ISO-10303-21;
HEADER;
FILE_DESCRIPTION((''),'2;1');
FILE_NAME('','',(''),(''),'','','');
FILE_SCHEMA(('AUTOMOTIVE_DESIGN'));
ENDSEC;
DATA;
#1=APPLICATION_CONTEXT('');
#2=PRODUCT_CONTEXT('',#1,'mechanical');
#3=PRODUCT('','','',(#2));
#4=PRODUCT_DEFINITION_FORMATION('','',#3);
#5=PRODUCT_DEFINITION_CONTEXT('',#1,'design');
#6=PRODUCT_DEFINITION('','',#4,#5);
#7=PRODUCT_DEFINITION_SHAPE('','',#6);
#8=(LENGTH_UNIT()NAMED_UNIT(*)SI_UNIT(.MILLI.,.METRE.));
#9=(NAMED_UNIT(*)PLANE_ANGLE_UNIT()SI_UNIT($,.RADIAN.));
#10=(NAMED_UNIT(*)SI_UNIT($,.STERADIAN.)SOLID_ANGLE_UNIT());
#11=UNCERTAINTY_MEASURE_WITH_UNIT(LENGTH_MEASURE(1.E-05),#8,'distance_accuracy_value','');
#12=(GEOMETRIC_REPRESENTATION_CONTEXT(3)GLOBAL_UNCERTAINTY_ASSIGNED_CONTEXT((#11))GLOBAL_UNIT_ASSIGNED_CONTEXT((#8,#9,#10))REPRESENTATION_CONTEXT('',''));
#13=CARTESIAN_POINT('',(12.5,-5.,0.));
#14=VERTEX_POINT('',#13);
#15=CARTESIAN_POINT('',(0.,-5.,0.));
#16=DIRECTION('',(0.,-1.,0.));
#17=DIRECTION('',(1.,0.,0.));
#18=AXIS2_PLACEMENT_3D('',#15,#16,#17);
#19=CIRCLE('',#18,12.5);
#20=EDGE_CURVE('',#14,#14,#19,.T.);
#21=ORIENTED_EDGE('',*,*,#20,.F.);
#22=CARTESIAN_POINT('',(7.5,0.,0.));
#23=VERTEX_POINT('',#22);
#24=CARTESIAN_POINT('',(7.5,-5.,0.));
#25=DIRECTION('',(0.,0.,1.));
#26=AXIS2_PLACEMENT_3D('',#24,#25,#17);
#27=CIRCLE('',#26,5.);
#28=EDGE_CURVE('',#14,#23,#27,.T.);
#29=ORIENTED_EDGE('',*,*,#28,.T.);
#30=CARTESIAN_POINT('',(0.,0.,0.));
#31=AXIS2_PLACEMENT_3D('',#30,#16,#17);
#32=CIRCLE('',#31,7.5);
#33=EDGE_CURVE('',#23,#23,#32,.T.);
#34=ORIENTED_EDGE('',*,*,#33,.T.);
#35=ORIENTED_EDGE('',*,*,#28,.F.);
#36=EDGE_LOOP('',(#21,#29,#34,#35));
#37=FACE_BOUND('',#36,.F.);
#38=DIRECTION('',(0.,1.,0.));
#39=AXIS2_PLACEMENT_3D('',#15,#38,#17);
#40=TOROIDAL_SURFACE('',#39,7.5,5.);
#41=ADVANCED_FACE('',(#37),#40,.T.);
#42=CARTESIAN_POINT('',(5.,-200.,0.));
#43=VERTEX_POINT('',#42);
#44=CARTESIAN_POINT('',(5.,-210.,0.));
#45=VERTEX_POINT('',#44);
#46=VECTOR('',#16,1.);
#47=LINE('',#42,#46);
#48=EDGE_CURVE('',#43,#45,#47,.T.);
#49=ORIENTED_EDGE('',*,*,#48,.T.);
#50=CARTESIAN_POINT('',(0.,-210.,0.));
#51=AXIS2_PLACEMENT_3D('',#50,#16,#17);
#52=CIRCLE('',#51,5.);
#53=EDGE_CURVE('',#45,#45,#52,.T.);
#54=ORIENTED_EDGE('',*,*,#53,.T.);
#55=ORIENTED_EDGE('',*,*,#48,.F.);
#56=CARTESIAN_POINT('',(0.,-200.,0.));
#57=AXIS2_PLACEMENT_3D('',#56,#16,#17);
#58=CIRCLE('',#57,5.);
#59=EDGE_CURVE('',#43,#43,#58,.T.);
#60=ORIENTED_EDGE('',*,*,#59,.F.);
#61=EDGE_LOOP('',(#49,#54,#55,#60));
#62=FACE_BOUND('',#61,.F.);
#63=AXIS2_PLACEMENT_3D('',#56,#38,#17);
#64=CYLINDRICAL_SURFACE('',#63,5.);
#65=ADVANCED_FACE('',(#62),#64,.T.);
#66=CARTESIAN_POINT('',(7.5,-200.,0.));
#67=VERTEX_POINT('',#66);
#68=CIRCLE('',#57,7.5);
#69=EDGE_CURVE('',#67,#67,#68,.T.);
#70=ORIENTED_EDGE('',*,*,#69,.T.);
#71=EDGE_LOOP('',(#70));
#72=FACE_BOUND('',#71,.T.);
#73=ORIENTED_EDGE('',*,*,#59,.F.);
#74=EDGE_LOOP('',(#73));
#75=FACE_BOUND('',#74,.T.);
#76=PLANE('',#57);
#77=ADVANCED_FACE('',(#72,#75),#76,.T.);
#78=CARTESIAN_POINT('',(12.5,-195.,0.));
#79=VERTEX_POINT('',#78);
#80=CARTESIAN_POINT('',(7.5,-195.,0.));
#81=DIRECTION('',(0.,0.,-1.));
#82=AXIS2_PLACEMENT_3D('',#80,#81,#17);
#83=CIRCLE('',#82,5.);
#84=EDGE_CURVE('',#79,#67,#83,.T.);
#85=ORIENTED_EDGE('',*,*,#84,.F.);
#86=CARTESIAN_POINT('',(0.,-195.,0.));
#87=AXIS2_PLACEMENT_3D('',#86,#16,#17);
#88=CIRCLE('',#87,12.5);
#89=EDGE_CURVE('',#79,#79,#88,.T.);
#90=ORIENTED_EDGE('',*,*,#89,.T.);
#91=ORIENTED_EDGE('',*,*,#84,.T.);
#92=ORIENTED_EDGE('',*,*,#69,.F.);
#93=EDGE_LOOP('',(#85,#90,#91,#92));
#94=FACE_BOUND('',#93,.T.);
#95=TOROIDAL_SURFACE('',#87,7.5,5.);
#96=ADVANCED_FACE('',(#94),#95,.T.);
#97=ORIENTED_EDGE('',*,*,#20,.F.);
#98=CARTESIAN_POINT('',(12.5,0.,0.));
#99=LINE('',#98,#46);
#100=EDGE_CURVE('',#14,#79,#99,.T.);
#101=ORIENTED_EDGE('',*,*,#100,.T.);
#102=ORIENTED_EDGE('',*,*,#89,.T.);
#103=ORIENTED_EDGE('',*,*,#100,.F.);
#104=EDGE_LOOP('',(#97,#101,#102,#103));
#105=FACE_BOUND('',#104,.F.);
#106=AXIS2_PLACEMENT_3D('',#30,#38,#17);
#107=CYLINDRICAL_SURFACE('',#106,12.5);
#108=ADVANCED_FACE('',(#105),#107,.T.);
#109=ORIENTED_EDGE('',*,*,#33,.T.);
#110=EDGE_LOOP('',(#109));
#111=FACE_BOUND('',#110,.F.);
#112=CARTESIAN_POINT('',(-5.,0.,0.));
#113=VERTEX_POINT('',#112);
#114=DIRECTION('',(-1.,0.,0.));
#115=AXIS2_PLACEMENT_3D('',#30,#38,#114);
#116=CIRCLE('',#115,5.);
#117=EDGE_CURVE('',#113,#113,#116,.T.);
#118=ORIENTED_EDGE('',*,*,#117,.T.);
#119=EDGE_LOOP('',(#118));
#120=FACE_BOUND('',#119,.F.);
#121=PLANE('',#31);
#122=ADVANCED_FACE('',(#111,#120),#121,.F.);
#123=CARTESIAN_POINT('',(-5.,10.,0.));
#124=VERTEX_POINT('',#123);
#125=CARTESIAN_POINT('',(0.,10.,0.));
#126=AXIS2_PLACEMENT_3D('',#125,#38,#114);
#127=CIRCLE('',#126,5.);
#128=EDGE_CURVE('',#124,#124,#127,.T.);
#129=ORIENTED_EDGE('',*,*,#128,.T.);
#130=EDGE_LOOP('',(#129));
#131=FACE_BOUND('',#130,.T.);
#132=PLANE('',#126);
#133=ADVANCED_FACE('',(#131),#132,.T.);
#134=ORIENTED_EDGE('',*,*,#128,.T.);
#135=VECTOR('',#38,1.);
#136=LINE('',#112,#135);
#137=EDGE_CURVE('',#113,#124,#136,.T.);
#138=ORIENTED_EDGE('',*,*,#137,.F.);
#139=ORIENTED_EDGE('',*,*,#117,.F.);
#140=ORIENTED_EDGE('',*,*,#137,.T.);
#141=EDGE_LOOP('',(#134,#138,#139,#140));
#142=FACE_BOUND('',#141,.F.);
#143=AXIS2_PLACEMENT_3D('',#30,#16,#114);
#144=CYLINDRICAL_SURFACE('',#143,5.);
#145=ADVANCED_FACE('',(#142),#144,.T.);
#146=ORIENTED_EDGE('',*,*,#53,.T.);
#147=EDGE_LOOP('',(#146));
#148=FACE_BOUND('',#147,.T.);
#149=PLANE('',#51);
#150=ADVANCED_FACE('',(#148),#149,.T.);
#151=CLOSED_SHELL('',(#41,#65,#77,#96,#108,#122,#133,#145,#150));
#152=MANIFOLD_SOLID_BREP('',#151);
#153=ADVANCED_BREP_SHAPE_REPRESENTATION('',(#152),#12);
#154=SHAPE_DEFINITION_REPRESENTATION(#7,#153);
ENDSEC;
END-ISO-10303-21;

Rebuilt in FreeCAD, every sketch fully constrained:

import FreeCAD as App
import Part
import Sketcher


def edges_at(feature, points):
    """Names of the edges that pass closest to the given points."""
    edges = feature.Shape.Edges
    near = lambda p: min(range(len(edges)), key=lambda i: edges[i].distToShape(Part.Vertex(*p))[0])
    return sorted({f"Edge{near(p) + 1}" for p in points})

doc = App.newDocument("Part")
body = doc.addObject("PartDesign::Body", "Body")

# Sketch on XZ plane
sketch1 = body.newObject("Sketcher::SketchObject", "Sketch")
sketch1.AttachmentSupport = (doc.getObject("XZ_Plane"), [""])
sketch1.MapMode = "FlatFace"
sketch1.addGeometry(Part.Circle(App.Vector(0, 0, 0), App.Vector(0, 0, 1), 12.5), False)
sketch1.addConstraint([
    Sketcher.Constraint("Coincident", 0, 3, -1, 1),
    Sketcher.Constraint("Diameter", 0, 25.0),
])
pad1 = body.newObject("PartDesign::Pad", "Pad")
pad1.Profile = sketch1
pad1.Length = 200

# Sketch on XZ plane
sketch2 = body.newObject("Sketcher::SketchObject", "Sketch001")
sketch2.AttachmentSupport = (doc.getObject("XZ_Plane"), [""])
sketch2.MapMode = "FlatFace"
sketch2.AttachmentOffset = App.Placement(App.Vector(0, 0, 200), App.Rotation())
sketch2.addGeometry(Part.Circle(App.Vector(0, 0, 0), App.Vector(0, 0, 1), 5), False)
sketch2.addConstraint([
    Sketcher.Constraint("Coincident", 0, 3, -1, 1),
    Sketcher.Constraint("Diameter", 0, 10.0),
])
pad2 = body.newObject("PartDesign::Pad", "Pad001")
pad2.Profile = sketch2
pad2.Length = 10

# Sketch on XZ plane
sketch3 = body.newObject("Sketcher::SketchObject", "Sketch002")
sketch3.AttachmentSupport = (doc.getObject("XZ_Plane"), [""])
sketch3.MapMode = "FlatFace"
sketch3.addGeometry(Part.Circle(App.Vector(0, 0, 0), App.Vector(0, 0, 1), 5), False)
sketch3.addConstraint([
    Sketcher.Constraint("Coincident", 0, 3, -1, 1),
    Sketcher.Constraint("Diameter", 0, 10.0),
])
pad3 = body.newObject("PartDesign::Pad", "Pad002")
pad3.Profile = sketch3
pad3.Length = 10
pad3.Reversed = True
doc.recompute()

fillet = body.newObject("PartDesign::Fillet", "Fillet")
fillet.Base = (pad3, edges_at(pad3, [(-12.5, -200, 0)]))
fillet.Radius = 5
doc.recompute()

fillet2 = body.newObject("PartDesign::Fillet", "Fillet001")
fillet2.Base = (fillet, edges_at(fillet, [
    (-12.5, 0, 0),
    (11.036, -198.536, 0),
    (-12.5, -195, 0),
    (-7.5, -200, 0),
]))
fillet2.Radius = 5

doc.recompute()
